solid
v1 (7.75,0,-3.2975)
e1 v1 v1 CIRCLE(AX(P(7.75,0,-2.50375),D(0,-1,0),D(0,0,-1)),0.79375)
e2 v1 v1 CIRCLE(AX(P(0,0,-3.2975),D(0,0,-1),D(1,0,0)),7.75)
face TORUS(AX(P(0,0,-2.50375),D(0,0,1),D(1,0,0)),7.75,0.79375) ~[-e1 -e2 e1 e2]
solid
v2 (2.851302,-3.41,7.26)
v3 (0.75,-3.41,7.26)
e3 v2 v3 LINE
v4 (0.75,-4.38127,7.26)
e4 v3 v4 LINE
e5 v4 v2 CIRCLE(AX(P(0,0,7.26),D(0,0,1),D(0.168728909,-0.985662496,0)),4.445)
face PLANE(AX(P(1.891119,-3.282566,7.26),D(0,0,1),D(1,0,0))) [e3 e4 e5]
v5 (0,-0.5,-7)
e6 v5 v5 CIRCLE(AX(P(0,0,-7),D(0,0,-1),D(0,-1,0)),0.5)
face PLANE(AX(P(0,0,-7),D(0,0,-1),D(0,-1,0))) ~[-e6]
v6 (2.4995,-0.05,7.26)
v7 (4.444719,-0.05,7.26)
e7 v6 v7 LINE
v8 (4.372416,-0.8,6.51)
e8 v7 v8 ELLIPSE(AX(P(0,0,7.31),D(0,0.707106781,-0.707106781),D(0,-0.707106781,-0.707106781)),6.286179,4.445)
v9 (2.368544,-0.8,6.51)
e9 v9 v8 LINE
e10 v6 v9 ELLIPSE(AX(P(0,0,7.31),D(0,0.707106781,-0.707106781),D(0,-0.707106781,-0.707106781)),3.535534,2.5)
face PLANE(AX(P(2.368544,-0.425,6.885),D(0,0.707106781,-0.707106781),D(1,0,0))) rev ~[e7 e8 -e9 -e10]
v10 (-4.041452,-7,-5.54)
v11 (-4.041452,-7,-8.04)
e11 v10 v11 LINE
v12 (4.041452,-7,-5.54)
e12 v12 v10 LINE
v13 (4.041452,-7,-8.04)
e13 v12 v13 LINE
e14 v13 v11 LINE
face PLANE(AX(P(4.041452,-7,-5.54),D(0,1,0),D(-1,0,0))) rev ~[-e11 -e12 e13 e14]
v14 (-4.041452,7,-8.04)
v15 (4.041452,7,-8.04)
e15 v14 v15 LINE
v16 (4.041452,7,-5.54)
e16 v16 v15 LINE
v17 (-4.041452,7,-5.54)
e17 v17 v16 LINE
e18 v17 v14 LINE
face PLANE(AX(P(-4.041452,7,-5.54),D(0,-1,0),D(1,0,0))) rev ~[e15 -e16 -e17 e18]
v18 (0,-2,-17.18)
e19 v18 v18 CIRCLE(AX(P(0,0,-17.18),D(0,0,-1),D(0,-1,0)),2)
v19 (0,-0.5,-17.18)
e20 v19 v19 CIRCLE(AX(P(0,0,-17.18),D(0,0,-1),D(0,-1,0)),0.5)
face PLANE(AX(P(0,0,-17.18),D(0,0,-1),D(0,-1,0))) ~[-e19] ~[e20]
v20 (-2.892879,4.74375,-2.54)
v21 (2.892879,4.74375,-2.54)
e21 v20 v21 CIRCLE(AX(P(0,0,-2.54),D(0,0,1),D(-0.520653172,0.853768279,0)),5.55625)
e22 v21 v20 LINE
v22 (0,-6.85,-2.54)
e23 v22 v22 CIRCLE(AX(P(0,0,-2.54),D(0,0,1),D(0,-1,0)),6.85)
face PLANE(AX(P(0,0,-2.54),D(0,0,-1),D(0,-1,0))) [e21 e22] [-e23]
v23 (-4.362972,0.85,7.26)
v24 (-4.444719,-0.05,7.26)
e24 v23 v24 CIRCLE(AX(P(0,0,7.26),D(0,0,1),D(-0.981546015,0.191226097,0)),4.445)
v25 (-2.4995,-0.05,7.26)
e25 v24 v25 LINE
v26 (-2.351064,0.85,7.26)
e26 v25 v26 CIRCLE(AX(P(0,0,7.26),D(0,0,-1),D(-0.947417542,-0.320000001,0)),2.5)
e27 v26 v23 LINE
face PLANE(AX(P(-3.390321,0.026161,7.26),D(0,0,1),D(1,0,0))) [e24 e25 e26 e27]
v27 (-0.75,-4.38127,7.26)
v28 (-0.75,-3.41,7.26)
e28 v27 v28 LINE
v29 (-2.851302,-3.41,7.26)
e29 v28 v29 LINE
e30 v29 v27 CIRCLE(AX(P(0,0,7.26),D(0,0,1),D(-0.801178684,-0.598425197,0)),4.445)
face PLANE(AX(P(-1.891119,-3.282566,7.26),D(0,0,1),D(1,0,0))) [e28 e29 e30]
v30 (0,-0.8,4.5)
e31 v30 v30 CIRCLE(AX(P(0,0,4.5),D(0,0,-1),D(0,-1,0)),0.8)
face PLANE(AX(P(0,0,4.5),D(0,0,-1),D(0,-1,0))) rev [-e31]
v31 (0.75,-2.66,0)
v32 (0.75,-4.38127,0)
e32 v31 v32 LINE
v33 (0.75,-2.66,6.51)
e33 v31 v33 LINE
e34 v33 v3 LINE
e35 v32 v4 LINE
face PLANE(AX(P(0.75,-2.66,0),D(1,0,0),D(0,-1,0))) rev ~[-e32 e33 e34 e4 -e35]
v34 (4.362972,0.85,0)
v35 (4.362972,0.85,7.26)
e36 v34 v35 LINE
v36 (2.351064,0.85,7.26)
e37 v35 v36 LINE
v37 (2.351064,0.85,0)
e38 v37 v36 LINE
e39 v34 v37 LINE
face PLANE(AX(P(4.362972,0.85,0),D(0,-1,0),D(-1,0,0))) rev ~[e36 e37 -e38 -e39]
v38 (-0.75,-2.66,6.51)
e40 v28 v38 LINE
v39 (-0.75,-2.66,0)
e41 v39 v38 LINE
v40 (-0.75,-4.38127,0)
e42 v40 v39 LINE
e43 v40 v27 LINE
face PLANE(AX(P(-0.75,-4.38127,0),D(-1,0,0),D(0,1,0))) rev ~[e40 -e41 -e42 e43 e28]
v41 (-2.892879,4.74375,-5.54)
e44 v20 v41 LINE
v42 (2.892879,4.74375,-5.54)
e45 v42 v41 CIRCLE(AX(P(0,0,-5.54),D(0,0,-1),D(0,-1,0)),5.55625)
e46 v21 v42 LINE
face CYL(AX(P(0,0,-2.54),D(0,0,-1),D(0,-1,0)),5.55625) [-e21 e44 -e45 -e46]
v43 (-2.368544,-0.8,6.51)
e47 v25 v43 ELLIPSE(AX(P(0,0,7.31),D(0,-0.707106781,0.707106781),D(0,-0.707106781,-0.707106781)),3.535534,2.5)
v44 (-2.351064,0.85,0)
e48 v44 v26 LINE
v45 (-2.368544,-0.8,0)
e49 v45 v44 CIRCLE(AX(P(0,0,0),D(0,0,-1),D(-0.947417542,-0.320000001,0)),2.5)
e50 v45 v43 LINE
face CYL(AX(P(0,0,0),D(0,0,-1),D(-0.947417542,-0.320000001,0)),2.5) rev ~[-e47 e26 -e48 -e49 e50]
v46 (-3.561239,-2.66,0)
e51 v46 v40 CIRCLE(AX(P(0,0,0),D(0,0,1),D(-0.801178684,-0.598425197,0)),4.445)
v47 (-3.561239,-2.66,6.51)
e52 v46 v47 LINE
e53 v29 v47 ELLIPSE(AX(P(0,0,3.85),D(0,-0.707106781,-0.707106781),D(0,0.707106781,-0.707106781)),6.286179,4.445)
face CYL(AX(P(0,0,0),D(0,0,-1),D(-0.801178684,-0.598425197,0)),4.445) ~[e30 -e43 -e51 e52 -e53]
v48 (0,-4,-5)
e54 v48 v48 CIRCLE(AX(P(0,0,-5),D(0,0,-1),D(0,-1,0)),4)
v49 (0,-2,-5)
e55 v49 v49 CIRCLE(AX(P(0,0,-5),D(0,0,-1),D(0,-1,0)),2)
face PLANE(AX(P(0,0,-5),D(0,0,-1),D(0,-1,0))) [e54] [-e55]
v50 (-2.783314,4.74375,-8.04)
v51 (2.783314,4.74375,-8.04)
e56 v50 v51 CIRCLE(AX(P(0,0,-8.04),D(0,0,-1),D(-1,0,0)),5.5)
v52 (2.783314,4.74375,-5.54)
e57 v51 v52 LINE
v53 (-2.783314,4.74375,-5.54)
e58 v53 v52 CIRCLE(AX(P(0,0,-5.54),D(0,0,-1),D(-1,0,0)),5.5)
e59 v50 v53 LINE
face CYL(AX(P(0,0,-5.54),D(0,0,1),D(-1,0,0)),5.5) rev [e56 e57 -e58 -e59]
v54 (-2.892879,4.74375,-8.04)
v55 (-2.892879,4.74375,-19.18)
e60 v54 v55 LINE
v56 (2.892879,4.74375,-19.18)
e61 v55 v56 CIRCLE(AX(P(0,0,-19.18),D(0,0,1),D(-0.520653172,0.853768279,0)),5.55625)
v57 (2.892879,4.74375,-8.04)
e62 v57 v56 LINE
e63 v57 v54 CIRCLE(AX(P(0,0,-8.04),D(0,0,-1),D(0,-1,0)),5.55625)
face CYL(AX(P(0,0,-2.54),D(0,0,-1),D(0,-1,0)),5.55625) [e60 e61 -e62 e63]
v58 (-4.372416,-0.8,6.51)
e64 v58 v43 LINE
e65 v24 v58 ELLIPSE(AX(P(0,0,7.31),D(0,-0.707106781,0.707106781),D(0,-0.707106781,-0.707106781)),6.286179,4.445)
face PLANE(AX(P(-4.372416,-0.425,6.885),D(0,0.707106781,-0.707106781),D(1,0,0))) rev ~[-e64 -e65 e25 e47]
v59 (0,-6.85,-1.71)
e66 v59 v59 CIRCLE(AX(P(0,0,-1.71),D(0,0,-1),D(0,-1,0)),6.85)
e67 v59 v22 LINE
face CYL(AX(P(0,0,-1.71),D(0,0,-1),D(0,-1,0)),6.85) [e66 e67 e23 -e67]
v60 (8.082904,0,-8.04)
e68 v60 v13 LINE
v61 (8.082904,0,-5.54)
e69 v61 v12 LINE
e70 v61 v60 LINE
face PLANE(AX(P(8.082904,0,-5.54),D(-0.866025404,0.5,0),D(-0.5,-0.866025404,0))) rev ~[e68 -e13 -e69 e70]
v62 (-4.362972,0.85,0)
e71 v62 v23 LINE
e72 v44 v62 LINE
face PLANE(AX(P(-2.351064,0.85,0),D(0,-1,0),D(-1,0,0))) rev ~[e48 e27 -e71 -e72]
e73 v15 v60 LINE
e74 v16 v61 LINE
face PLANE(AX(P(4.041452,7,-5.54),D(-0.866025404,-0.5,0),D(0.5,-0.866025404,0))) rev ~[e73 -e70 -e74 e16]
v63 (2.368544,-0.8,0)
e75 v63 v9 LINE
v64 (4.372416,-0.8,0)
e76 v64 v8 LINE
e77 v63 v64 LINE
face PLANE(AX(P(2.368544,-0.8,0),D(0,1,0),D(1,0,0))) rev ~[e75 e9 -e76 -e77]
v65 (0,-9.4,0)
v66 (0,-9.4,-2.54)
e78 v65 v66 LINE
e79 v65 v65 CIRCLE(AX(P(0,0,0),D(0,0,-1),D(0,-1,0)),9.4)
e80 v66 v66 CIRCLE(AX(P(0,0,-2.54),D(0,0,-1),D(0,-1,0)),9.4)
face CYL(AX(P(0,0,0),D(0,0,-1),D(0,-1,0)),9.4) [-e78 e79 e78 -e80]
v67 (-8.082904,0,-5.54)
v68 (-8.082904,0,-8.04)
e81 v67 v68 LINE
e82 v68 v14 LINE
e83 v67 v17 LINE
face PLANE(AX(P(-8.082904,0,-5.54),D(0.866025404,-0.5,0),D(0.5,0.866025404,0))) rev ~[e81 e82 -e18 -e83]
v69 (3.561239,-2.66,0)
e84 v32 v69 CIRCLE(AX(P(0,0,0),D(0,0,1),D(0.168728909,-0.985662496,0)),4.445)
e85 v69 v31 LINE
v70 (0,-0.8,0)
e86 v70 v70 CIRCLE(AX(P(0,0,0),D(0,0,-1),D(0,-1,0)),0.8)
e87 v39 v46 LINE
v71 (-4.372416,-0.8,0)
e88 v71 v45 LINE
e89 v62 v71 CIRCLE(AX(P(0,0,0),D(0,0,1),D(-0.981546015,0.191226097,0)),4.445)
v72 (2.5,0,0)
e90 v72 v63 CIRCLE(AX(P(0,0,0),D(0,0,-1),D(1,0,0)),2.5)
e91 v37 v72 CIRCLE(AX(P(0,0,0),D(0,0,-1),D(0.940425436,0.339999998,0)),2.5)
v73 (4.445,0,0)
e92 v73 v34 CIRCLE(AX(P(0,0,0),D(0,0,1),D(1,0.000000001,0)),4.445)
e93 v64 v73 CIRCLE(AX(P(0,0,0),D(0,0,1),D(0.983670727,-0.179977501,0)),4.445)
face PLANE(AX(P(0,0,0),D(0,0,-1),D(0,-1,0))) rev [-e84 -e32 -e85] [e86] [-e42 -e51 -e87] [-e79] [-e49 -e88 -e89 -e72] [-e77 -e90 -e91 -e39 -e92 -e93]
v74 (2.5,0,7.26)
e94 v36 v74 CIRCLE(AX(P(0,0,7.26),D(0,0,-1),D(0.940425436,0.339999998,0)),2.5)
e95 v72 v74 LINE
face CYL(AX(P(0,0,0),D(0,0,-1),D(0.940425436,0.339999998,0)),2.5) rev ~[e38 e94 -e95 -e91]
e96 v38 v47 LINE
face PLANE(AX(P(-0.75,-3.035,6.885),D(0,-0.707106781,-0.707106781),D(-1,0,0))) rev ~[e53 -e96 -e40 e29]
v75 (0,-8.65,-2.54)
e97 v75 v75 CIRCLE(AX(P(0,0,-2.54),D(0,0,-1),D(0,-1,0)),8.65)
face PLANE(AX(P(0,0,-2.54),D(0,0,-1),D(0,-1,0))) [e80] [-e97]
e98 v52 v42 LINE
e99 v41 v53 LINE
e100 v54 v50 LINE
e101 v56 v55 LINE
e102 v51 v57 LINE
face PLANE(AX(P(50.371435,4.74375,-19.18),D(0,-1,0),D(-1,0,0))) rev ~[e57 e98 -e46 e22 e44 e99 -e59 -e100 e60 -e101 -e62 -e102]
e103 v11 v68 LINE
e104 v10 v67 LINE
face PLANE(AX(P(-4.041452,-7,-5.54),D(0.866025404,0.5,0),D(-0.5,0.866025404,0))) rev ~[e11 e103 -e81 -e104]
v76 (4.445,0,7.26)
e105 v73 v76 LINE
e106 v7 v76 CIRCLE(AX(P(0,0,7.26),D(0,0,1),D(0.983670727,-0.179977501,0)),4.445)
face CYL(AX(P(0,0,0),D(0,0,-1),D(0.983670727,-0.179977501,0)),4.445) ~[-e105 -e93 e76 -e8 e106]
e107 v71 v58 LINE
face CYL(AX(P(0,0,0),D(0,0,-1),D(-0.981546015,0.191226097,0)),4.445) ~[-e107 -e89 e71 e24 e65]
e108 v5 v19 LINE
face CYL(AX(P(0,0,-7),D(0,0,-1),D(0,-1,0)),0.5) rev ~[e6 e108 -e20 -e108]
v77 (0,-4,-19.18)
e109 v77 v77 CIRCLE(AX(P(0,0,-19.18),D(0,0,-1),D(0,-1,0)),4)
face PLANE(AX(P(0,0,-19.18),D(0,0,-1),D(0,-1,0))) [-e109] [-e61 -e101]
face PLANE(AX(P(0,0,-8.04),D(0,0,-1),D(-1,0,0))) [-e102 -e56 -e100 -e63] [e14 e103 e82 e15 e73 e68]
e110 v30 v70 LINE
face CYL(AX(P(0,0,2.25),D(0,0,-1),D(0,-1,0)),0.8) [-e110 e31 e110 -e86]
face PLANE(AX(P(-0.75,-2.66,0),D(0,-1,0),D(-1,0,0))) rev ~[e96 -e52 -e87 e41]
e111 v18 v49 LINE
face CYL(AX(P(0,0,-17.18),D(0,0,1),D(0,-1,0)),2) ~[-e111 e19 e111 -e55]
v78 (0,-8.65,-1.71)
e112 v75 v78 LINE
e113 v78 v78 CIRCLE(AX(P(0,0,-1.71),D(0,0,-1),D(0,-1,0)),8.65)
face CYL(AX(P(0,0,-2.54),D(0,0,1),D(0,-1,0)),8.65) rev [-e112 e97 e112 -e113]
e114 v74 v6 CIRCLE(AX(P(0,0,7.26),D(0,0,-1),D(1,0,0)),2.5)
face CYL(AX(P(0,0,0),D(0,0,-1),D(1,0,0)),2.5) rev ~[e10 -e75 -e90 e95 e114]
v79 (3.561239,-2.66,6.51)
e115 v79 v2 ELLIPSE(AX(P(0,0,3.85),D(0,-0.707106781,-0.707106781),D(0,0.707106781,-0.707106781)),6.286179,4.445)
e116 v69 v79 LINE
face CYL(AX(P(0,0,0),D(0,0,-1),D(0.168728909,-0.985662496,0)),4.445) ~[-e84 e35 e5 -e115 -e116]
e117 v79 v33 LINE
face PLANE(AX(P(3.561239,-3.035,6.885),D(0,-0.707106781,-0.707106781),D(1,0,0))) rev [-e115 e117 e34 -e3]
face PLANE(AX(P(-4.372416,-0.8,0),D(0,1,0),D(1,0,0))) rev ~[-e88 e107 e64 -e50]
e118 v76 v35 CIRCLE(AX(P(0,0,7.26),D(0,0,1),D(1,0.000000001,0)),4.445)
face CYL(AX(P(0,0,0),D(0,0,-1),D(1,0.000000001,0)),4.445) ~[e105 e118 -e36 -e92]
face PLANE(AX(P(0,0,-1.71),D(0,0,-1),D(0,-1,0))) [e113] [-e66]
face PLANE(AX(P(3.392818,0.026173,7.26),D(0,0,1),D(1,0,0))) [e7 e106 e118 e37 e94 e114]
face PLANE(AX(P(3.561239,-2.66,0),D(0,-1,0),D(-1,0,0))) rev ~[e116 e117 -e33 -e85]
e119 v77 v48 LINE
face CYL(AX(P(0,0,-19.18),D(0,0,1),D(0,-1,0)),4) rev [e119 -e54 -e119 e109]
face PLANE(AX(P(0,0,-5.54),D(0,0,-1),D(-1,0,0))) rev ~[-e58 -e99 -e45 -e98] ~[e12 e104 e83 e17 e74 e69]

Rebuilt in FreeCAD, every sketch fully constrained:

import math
import FreeCAD as App
import Part
import Sketcher
from FreeCAD import Vector
Q = App.Units.Quantity


def edges_at(feature, points):
    """Names of the edges that pass closest to the given points."""
    edges = feature.Shape.Edges
    near = lambda p: min(range(len(edges)), key=lambda i: edges[i].distToShape(Part.Vertex(*p))[0])
    return sorted({f"Edge{near(p) + 1}" for p in points})


def add_polygon(sketch, points):
    """Adds a closed chain of lines whose ends are joined by coincident constraints."""
    first, n = sketch.GeometryCount, len(points)
    for a, b in zip(points, points[1:] + points[:1]):
        sketch.addGeometry(Part.LineSegment(App.Vector(*a, 0), App.Vector(*b, 0)), False)
    for i in range(n):
        sketch.addConstraint(Sketcher.Constraint("Coincident", first + i, 2, first + (i + 1) % n, 1))

doc = App.newDocument("Part")
body = doc.addObject("PartDesign::Body", "Body")

# Sketch on YZ plane
sketch1 = body.newObject("Sketcher::SketchObject", "Sketch")
sketch1.AttachmentSupport = (doc.getObject("YZ_Plane"), [""])
sketch1.MapMode = "FlatFace"
add_polygon(sketch1, [(8.65, -1.71), (8.65, -2.54), (9.4, -2.54), (9.4, 0), (0.8, 0), (0.8, 4.5), (0, 4.5), (0, -5), (4, -5), (4, -19.18), (5.55625, -19.18), (5.55625, -2.54), (6.85, -2.54), (6.85, -1.71)])  # lines 0-13
sketch1.addConstraint([
    Sketcher.Constraint("Vertical", 0),
    Sketcher.Constraint("Horizontal", 1),
    Sketcher.Constraint("Vertical", 2),
    Sketcher.Constraint("Horizontal", 3),
    Sketcher.Constraint("Vertical", 4),
    Sketcher.Constraint("Horizontal", 5),
    Sketcher.Constraint("Vertical", 6),
    Sketcher.Constraint("Horizontal", 7),
    Sketcher.Constraint("Vertical", 8),
    Sketcher.Constraint("Horizontal", 9),
    Sketcher.Constraint("Vertical", 10),
    Sketcher.Constraint("Horizontal", 11),
    Sketcher.Constraint("Vertical", 12),
    Sketcher.Constraint("Horizontal", 13),
    Sketcher.Constraint("PointOnObject", 2, 2, -1),
    Sketcher.Constraint("PointOnObject", 5, 2, -2),
    Sketcher.Constraint("Horizontal", 1, 2, 10, 2),
    Sketcher.Constraint("DistanceX", 7, 1, 7, 2, 4.0),
    Sketcher.Constraint("DistanceX", 3, 2, 3, 1, 8.6),
    Sketcher.Constraint("DistanceX", 5, 2, 5, 1, 0.8),
    Sketcher.Constraint("DistanceX", 13, 1, 13, 2, 1.8),
    Sketcher.Constraint("DistanceY", 4, 1, 4, 2, 4.5),
    Sketcher.Constraint("DistanceY", 6, 2, 6, 1, 9.5),
    Sketcher.Constraint("DistanceX", 1, 1, 1, 2, 0.75),
    Sketcher.Constraint("DistanceY", 0, 2, 0, 1, 0.83),
    Sketcher.Constraint("DistanceY", 2, 1, 2, 2, 2.54),
    Sketcher.Constraint("DistanceY", 8, 2, 8, 1, 14.18),
    Sketcher.Constraint("DistanceX", 9, 1, 9, 2, 1.55625),
])
revolution = body.newObject("PartDesign::Revolution", "Revolution")
revolution.Profile = sketch1
revolution.ReferenceAxis = (sketch1, ["V_Axis"])
revolution.Angle = 360

# Sketch on XY plane
sketch2 = body.newObject("Sketcher::SketchObject", "Sketch001")
sketch2.AttachmentSupport = (doc.getObject("XY_Plane"), [""])
sketch2.MapMode = "FlatFace"
sketch2.addGeometry([
    Part.ArcOfCircle(Part.Circle(Vector(0, 0, 0), Vector(0, 0, 1), 4.445), math.radians(168.975654), math.radians(190.368449)),  # 0
    Part.LineSegment(Vector(-4.372416, -0.8, 0), Vector(-2.368544, -0.8, 0)),  # 1
    Part.ArcOfCircle(Part.Circle(Vector(0, 0, 0), Vector(0, 0, 1), 2.5), math.radians(160.123126), math.radians(198.662925)),  # 2
    Part.LineSegment(Vector(-2.351064, 0.85, 0), Vector(-4.362972, 0.85, 0)),  # 3
    Part.ArcOfCircle(Part.Circle(Vector(0, 0, 0), Vector(0, 0, 1), 2.5), math.radians(-18.662925), math.radians(0)),  # 4
    Part.LineSegment(Vector(2.368544, -0.8, 0), Vector(4.372416, -0.8, 0)),  # 5
    Part.ArcOfCircle(Part.Circle(Vector(0, 0, 0), Vector(0, 0, 1), 4.445), math.radians(-10.368449), math.radians(0)),  # 6
    Part.ArcOfCircle(Part.Circle(Vector(0, 0, 0), Vector(0, 0, 1), 4.445), math.radians(0), math.radians(11.024346)),  # 7
    Part.LineSegment(Vector(4.362972, 0.85, 0), Vector(2.351064, 0.85, 0)),  # 8
    Part.ArcOfCircle(Part.Circle(Vector(0, 0, 0), Vector(0, 0, 1), 2.5), math.radians(0), math.radians(19.876874)),  # 9
], False)
sketch2.addConstraint([
    Sketcher.Constraint("Coincident", 0, 2, 1, 1),
    Sketcher.Constraint("Coincident", 1, 2, 2, 2),
    Sketcher.Constraint("Coincident", 2, 1, 3, 1),
    Sketcher.Constraint("Coincident", 3, 2, 0, 1),
    Sketcher.Constraint("Coincident", 4, 1, 5, 1),
    Sketcher.Constraint("Coincident", 5, 2, 6, 1),
    Sketcher.Constraint("Tangent", 6, 2, 7, 1),
    Sketcher.Constraint("Coincident", 7, 2, 8, 1),
    Sketcher.Constraint("Coincident", 8, 2, 9, 2),
    Sketcher.Constraint("Tangent", 9, 1, 4, 2),
    Sketcher.Constraint("Horizontal", 1),
    Sketcher.Constraint("Horizontal", 3),
    Sketcher.Constraint("Horizontal", 5),
    Sketcher.Constraint("Horizontal", 8),
    Sketcher.Constraint("Coincident", 0, 3, -1, 1),
    Sketcher.Constraint("Coincident", 2, 3, -1, 1),
    Sketcher.Constraint("Coincident", 4, 3, -1, 1),
    Sketcher.Constraint("Coincident", 6, 3, -1, 1),
    Sketcher.Constraint("Equal", 2, 4),
    Sketcher.Constraint("Equal", 0, 6),
    Sketcher.Constraint("Equal", 6, 7),
    Sketcher.Constraint("Equal", 4, 9),
    Sketcher.Constraint("PointOnObject", 6, 2, -1),
    Sketcher.Constraint("PointOnObject", 9, 1, -1),
    Sketcher.Constraint("Horizontal", 1, 2, 4, 1),
    Sketcher.Constraint("Horizontal", 3, 2, 7, 2),
    Sketcher.Constraint("Radius", 2, 2.5),
    Sketcher.Constraint("Radius", 0, 4.445),
    Sketcher.Constraint("DistanceY", 0, 2, -1, 1, 0.8),
    Sketcher.Constraint("DistanceY", -1, 1, 2, 1, 0.85),
])
pad1 = body.newObject("PartDesign::Pad", "Pad")
pad1.Profile = sketch2
pad1.Length = 7.26

# Sketch on XY plane
sketch3 = body.newObject("Sketcher::SketchObject", "Sketch002")
sketch3.AttachmentSupport = (doc.getObject("XY_Plane"), [""])
sketch3.MapMode = "FlatFace"
sketch3.addGeometry([
    Part.LineSegment(Vector(-0.75, -2.66, 0), Vector(-3.561239, -2.66, 0)),  # 0
    Part.ArcOfCircle(Part.Circle(Vector(0, 0, 0), Vector(0, 0, 1), 4.445), math.radians(-143.242806), math.radians(-99.713923)),  # 1
    Part.LineSegment(Vector(-0.75, -4.38127, 0), Vector(-0.75, -2.66, 0)),  # 2
    Part.LineSegment(Vector(0.75, -2.66, 0), Vector(0.75, -4.38127, 0)),  # 3
    Part.ArcOfCircle(Part.Circle(Vector(0, 0, 0), Vector(0, 0, 1), 4.445), math.radians(-80.286077), math.radians(-36.757194)),  # 4
    Part.LineSegment(Vector(3.561239, -2.66, 0), Vector(0.75, -2.66, 0)),  # 5
], False)
sketch3.addConstraint([
    Sketcher.Constraint("Coincident", 0, 2, 1, 1),
    Sketcher.Constraint("Coincident", 1, 2, 2, 1),
    Sketcher.Constraint("Coincident", 2, 2, 0, 1),
    Sketcher.Constraint("Coincident", 3, 2, 4, 1),
    Sketcher.Constraint("Coincident", 4, 2, 5, 1),
    Sketcher.Constraint("Coincident", 5, 2, 3, 1),
    Sketcher.Constraint("Horizontal", 0),
    Sketcher.Constraint("Vertical", 2),
    Sketcher.Constraint("Vertical", 3),
    Sketcher.Constraint("Horizontal", 5),
    Sketcher.Constraint("Coincident", 1, 3, -1, 1),
    Sketcher.Constraint("Coincident", 4, 3, -1, 1),
    Sketcher.Constraint("Equal", 1, 4),
    Sketcher.Constraint("Symmetric", 2, 2, 5, 2, -2),
    Sketcher.Constraint("Radius", 1, 4.445),
    Sketcher.Constraint("DistanceX", 1, 2, 3, 2, 1.5),
    Sketcher.Constraint("DistanceY", 0, 2, -1, 1, 2.66),
])
pad2 = body.newObject("PartDesign::Pad", "Pad001")
pad2.Profile = sketch3
pad2.Length = 7.26

# Sketch on XY plane
sketch4 = body.newObject("Sketcher::SketchObject", "Sketch003")
sketch4.AttachmentSupport = (doc.getObject("XY_Plane"), [""])
sketch4.MapMode = "FlatFace"
sketch4.AttachmentOffset = App.Placement(Vector(0, 0, -19.18), App.Rotation())
add_polygon(sketch4, [(50.371435, 4.74375), (-50.371435, 4.74375), (-50.371435, 99.700862), (50.371435, 99.700862)])  # lines 0-3
sketch4.addConstraint([
    Sketcher.Constraint("Horizontal", 0),
    Sketcher.Constraint("Vertical", 1),
    Sketcher.Constraint("Horizontal", 2),
    Sketcher.Constraint("Vertical", 3),
    Sketcher.Constraint("DistanceX", 0, 2, 0, 1, 100.742871),
    Sketcher.Constraint("DistanceY", 1, 1, 1, 2, 94.957112),
    Sketcher.Constraint("DistanceY", -1, 1, 0, 2, 4.74375),
    Sketcher.Constraint("DistanceX", 0, 2, -1, 1, 50.371435),
])
pocket1 = body.newObject("PartDesign::Pocket", "Pocket")
pocket1.Profile = sketch4
pocket1.Length = 16.64
pocket1.Reversed = True
doc.recompute()

chamfer = body.newObject("PartDesign::Chamfer", "Chamfer")
chamfer.Base = (pocket1, edges_at(pocket1, [
    (-3.37, -0.8, 7.26),
    (3.37, -0.8, 7.26),
    (-2.156, -2.66, 7.26),
    (2.156, -2.66, 7.26),
]))
chamfer.Size = 0.75
body2 = doc.addObject("PartDesign::Body", "Body001")

# Sketch on YZ plane
sketch5 = body2.newObject("Sketcher::SketchObject", "Sketch004")
sketch5.AttachmentSupport = (doc.getObject("YZ_Plane001"), [""])
sketch5.MapMode = "FlatFace"
add_polygon(sketch5, [(2, -5), (0, -5), (0, -7), (0.5, -7), (0.5, -17.18), (2, -17.18)])  # lines 0-5
sketch5.addConstraint([
    Sketcher.Constraint("Horizontal", 0),
    Sketcher.Constraint("Vertical", 1),
    Sketcher.Constraint("Horizontal", 2),
    Sketcher.Constraint("Vertical", 3),
    Sketcher.Constraint("Horizontal", 4),
    Sketcher.Constraint("Vertical", 5),
    Sketcher.Constraint("PointOnObject", 0, 2, -2),
    Sketcher.Constraint("Equal", 0, 1),
    Sketcher.Constraint("DistanceX", 0, 2, 0, 1, 2.0),
    Sketcher.Constraint("DistanceX", 2, 1, 2, 2, 0.5),
    Sketcher.Constraint("DistanceY", 0, 2, -1, 1, 5.0),
    Sketcher.Constraint("DistanceY", 3, 2, 3, 1, 10.18),
])
revolution2 = body2.newObject("PartDesign::Revolution", "Revolution001")
revolution2.Profile = sketch5
revolution2.ReferenceAxis = (sketch5, ["V_Axis"])
revolution2.Angle = 360
doc.recompute()

boolean = body2.newObject("PartDesign::Boolean", "Boolean")
boolean.Type = "Fuse"
boolean.addObjects([body])

# Sketch on XY plane
sketch6 = body2.newObject("Sketcher::SketchObject", "Sketch005")
sketch6.AttachmentSupport = (doc.getObject("XY_Plane001"), [""])
sketch6.MapMode = "FlatFace"
sketch6.AttachmentOffset = App.Placement(Vector(0, 0, -5.54), App.Rotation())
add_polygon(sketch6, [(-4.041452, 7), (4.041452, 7), (8.082904, 0), (4.041452, -7), (-4.041452, -7), (-8.082904, 0)])  # lines 0-5
sketch6.addGeometry(Part.Circle(Vector(0, 0, 0), Vector(0, 0, 1), 5.5), False)  # 6
sketch6.addConstraint([
    Sketcher.Constraint("Horizontal", 0),
    Sketcher.Constraint("Horizontal", 3),
    Sketcher.Constraint("Coincident", 6, 3, -1, 1),
    Sketcher.Constraint("Symmetric", 0, 2, 3, 2, -1, 1),
    Sketcher.Constraint("Symmetric", 1, 2, 4, 2, -1, 1),
    Sketcher.Constraint("PointOnObject", 1, 2, -1),
    Sketcher.Constraint("Parallel", 2, 5),
    Sketcher.Constraint("Vertical", 0, 2, 2, 2),
    Sketcher.Constraint("Diameter", 6, 11.0),
    Sketcher.Constraint("Angle", 1, Q("-60 deg")),
    Sketcher.Constraint("DistanceY", -1, 1, 0, 2, 7.0),
    Sketcher.Constraint("DistanceX", 0, 1, 0, 2, 8.082904),
])
pad3 = body2.newObject("PartDesign::Pad", "Pad002")
pad3.Profile = sketch6
pad3.Length = 2.5
pad3.Reversed = True
body3 = doc.addObject("PartDesign::Body", "Body002")

# Sketch on YZ plane
sketch7 = body3.newObject("Sketcher::SketchObject", "Sketch006")
sketch7.AttachmentSupport = (doc.getObject("YZ_Plane002"), [""])
sketch7.MapMode = "FlatFace"
sketch7.addGeometry(Part.Circle(Vector(7.75, -2.50375, 0), Vector(0, 0, 1), 0.79375), False)
sketch7.addConstraint([
    Sketcher.Constraint("Diameter", 0, 1.5875),
    Sketcher.Constraint("DistanceX", -1, 1, 0, 3, 7.75),
    Sketcher.Constraint("DistanceY", 0, 3, -1, 1, 2.50375),
])
revolution3 = body3.newObject("PartDesign::Revolution", "Revolution002")
revolution3.Profile = sketch7
revolution3.ReferenceAxis = (sketch7, ["V_Axis"])
revolution3.Angle = 360

doc.recompute()
